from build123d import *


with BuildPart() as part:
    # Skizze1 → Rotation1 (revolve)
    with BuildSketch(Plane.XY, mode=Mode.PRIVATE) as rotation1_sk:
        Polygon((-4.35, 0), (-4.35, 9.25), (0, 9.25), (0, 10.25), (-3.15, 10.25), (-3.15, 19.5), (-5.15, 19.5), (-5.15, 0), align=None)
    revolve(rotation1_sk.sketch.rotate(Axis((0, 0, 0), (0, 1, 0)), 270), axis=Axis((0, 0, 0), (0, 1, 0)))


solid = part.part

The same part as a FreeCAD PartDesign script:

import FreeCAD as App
import Part
import Sketcher

doc = App.newDocument("Part")
params = doc.addObject("Spreadsheet::Sheet", "Params")
for row, (alias, value) in enumerate([
    ("sketch1_width", "2 mm"),
    ("sketch1_height", "1 mm"),
    ("sketch1_width2", "0.8 mm"),
    ("sketch1_height2", "19.5 mm"),
    ("sketch1_width3", "4.35 mm"),
    ("revolution_angle", "360 deg"),
], start=1):
    params.set(f"A{row}", alias)
    params.set(f"B{row}", "=" + value)
    params.setAlias(f"B{row}", alias)

body = doc.addObject("PartDesign::Body", "Body")

sketch1 = body.newObject("Sketcher::SketchObject", "Sketch")
sketch1.AttachmentSupport = (doc.getObject("XY_Plane"), [""])
sketch1.MapMode = "FlatFace"
sketch1.addGeometry(Part.LineSegment(App.Vector(-4.3, 0, 0), App.Vector(-4.3, 9.2, 0)), False)
sketch1.addGeometry(Part.LineSegment(App.Vector(-4.3, 9.2, 0), App.Vector(0, 9.2, 0)), False)
sketch1.addGeometry(Part.LineSegment(App.Vector(0, 9.2, 0), App.Vector(0, 10.2, 0)), False)
sketch1.addGeometry(Part.LineSegment(App.Vector(0, 10.2, 0), App.Vector(-3.1, 10.2, 0)), False)
sketch1.addGeometry(Part.LineSegment(App.Vector(-3.1, 10.2, 0), App.Vector(-3.1, 19.5, 0)), False)
sketch1.addGeometry(Part.LineSegment(App.Vector(-3.1, 19.5, 0), App.Vector(-5.2, 19.5, 0)), False)
sketch1.addGeometry(Part.LineSegment(App.Vector(-5.2, 19.5, 0), App.Vector(-5.2, 0, 0)), False)
sketch1.addGeometry(Part.LineSegment(App.Vector(-5.2, 0, 0), App.Vector(-4.3, 0, 0)), False)
sketch1.addConstraint(Sketcher.Constraint("Coincident", 0, 2, 1, 1))
sketch1.addConstraint(Sketcher.Constraint("Coincident", 1, 2, 2, 1))
sketch1.addConstraint(Sketcher.Constraint("Coincident", 2, 2, 3, 1))
sketch1.addConstraint(Sketcher.Constraint("Coincident", 3, 2, 4, 1))
sketch1.addConstraint(Sketcher.Constraint("Coincident", 4, 2, 5, 1))
sketch1.addConstraint(Sketcher.Constraint("Coincident", 5, 2, 6, 1))
sketch1.addConstraint(Sketcher.Constraint("Coincident", 6, 2, 7, 1))
sketch1.addConstraint(Sketcher.Constraint("Coincident", 7, 2, 0, 1))
sketch1.addConstraint(Sketcher.Constraint("Vertical", 0))
sketch1.addConstraint(Sketcher.Constraint("Horizontal", 1))
sketch1.addConstraint(Sketcher.Constraint("Vertical", 2))
sketch1.addConstraint(Sketcher.Constraint("Horizontal", 3))
sketch1.addConstraint(Sketcher.Constraint("Vertical", 4))
sketch1.addConstraint(Sketcher.Constraint("Horizontal", 5))
sketch1.addConstraint(Sketcher.Constraint("Vertical", 6))
sketch1.addConstraint(Sketcher.Constraint("Horizontal", 7))
sketch1.addConstraint(Sketcher.Constraint("PointOnObject", 1, 2, -2))
sketch1.addConstraint(Sketcher.Constraint("PointOnObject", 6, 2, -1))
sketch1.addConstraint(Sketcher.Constraint("Equal", 0, 4))
sketch1.addConstraint(Sketcher.Constraint("DistanceX", 5, 2, 5, 1, 2.0))
sketch1.addConstraint(Sketcher.Constraint("DistanceY", 2, 1, 2, 2, 1.0))
sketch1.addConstraint(Sketcher.Constraint("DistanceX", 7, 1, 7, 2, 0.8))
sketch1.addConstraint(Sketcher.Constraint("DistanceY", 6, 2, 6, 1, 19.5))
sketch1.addConstraint(Sketcher.Constraint("DistanceX", 1, 1, 1, 2, 4.35))
sketch1.setExpression("Constraints[19]", "Params.sketch1_width")
sketch1.setExpression("Constraints[20]", "Params.sketch1_height")
sketch1.setExpression("Constraints[21]", "Params.sketch1_width2")
sketch1.setExpression("Constraints[22]", "Params.sketch1_height2")
sketch1.setExpression("Constraints[23]", "Params.sketch1_width3")
revolution = body.newObject("PartDesign::Revolution", "Revolution")
revolution.Profile = sketch1
revolution.ReferenceAxis = (sketch1, ["V_Axis"])
revolution.setExpression("Angle", "Params.revolution_angle")

doc.recompute()
